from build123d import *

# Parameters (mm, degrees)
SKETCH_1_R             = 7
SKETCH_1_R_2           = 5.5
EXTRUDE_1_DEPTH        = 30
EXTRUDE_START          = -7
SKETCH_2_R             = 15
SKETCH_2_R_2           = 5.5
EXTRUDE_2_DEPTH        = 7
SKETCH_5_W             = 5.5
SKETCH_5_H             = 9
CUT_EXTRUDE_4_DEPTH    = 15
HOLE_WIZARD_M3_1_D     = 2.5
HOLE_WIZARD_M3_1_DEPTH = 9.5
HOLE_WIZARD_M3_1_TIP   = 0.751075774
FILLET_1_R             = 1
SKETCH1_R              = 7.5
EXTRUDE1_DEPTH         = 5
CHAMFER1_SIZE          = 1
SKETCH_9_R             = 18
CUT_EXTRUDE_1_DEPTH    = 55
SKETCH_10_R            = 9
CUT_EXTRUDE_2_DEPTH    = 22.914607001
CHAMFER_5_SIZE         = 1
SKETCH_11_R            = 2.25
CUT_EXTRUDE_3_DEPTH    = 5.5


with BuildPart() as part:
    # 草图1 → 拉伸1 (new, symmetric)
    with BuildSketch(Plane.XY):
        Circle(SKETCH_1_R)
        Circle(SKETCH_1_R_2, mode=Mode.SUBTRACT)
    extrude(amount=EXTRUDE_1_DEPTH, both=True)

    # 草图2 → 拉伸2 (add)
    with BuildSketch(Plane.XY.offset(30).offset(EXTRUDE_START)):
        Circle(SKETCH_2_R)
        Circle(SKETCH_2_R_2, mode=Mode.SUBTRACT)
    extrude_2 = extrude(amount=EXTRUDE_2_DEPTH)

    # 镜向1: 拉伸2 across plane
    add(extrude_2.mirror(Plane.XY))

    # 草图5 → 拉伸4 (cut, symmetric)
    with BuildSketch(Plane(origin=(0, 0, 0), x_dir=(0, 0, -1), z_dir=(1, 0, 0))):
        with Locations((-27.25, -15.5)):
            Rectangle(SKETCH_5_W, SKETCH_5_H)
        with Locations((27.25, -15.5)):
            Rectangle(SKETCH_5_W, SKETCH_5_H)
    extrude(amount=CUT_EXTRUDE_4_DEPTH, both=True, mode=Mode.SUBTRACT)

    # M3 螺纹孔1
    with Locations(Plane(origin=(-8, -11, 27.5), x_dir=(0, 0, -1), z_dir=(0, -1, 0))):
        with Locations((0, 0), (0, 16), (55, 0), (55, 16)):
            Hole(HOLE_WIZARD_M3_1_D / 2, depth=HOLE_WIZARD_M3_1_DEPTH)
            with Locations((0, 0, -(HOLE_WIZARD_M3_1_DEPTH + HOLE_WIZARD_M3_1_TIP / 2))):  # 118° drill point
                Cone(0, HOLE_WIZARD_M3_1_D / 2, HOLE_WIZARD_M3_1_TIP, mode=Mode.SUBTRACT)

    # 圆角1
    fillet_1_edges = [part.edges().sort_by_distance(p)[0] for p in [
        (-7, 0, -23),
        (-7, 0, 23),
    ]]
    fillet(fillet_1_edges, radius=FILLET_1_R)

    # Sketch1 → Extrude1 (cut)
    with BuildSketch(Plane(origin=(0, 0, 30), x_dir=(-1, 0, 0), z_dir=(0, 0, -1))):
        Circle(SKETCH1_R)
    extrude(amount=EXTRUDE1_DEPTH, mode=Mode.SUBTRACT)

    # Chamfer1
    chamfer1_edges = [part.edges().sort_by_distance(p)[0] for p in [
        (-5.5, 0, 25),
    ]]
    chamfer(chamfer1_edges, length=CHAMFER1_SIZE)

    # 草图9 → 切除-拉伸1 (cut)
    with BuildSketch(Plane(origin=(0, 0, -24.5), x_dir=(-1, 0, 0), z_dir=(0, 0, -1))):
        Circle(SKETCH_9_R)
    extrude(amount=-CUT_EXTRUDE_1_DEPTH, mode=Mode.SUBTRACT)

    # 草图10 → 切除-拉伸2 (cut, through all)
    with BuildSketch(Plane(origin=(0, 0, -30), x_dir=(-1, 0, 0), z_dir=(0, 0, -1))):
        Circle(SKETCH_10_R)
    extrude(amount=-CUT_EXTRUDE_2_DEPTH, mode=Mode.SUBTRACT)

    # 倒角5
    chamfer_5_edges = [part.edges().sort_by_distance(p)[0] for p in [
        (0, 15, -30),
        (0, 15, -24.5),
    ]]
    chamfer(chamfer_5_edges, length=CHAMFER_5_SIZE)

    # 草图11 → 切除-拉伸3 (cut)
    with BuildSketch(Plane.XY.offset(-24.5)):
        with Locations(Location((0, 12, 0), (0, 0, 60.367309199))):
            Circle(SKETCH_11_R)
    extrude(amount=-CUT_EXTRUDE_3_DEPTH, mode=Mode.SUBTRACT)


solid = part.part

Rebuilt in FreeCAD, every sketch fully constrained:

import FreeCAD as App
import Part
import Sketcher

V = App.Vector
Q = App.Units.Quantity


def edges_at(feature, points):
    """Names of the edges that pass closest to the given points."""
    edges = feature.Shape.Edges
    near = lambda p: min(range(len(edges)), key=lambda i: edges[i].distToShape(Part.Vertex(*p))[0])
    return sorted({f"Edge{near(p) + 1}" for p in points})


def add_polygon(sketch, points):
    """Adds a closed chain of lines whose ends are joined by coincident constraints."""
    first, n = sketch.GeometryCount, len(points)
    for a, b in zip(points, points[1:] + points[:1]):
        sketch.addGeometry(Part.LineSegment(App.Vector(*a, 0), App.Vector(*b, 0)), False)
    for i in range(n):
        sketch.addConstraint(Sketcher.Constraint("Coincident", first + i, 2, first + (i + 1) % n, 1))

doc = App.newDocument("Part")
body = doc.addObject("PartDesign::Body", "Body")

sketch1 = doc.addObject("Sketcher::SketchObject", "Sketch")
body.addObject(sketch1)
sketch1.AttachmentSupport = (doc.XY_Plane, [""])
sketch1.MapMode = "FlatFace"
sketch1.addGeometry([
    Part.Circle(V(0, 0, 0), V(0, 0, 1), 7),
    Part.Circle(V(0, 0, 0), V(0, 0, 1), 6),
], False)
sketch1.addConstraint([
    Sketcher.Constraint("Coincident", 0, 3, -1, 1),
    Sketcher.Constraint("Coincident", 1, 3, -1, 1),
    Sketcher.Constraint("Diameter", 0, Q("14 mm")),
    Sketcher.Constraint("Diameter", 1, Q("11 mm")),
])
pad1 = doc.addObject("PartDesign::Pad", "Pad")
body.addObject(pad1)
pad1.Profile = sketch1
pad1.Length = 60
pad1.Midplane = True

sketch2 = doc.addObject("Sketcher::SketchObject", "Sketch001")
body.addObject(sketch2)
sketch2.AttachmentSupport = (doc.XY_Plane, [""])
sketch2.MapMode = "FlatFace"
sketch2.AttachmentOffset = App.Placement(V(0, 0, 23), App.Rotation())
sketch2.addGeometry([
    Part.Circle(V(0, 0, 0), V(0, 0, 1), 15),
    Part.Circle(V(0, 0, 0), V(0, 0, 1), 6),
], False)
sketch2.addConstraint([
    Sketcher.Constraint("Coincident", 0, 3, -1, 1),
    Sketcher.Constraint("Coincident", 1, 3, -1, 1),
    Sketcher.Constraint("Diameter", 0, Q("30 mm")),
    Sketcher.Constraint("Diameter", 1, Q("11 mm")),
])
pad2 = doc.addObject("PartDesign::Pad", "Pad001")
body.addObject(pad2)
pad2.Profile = sketch2
pad2.Length = 7
doc.recompute()

mirrored = doc.addObject("PartDesign::Mirrored", "Mirrored")
body.addObject(mirrored)
mirrored.Originals = [pad2]
mirrored.MirrorPlane = (doc.XY_Plane, [""])
body.Tip = mirrored

sketch3 = doc.addObject("Sketcher::SketchObject", "Sketch002")
body.addObject(sketch3)
sketch3.AttachmentSupport = (doc.YZ_Plane, [""])
sketch3.MapMode = "FlatFace"
add_polygon(sketch3, [(-11, 30), (-20, 30), (-20, 24), (-11, 24)])
add_polygon(sketch3, [(-11, -24), (-20, -24), (-20, -30), (-11, -30)])
sketch3.addConstraint([
    Sketcher.Constraint("Horizontal", 0),
    Sketcher.Constraint("Vertical", 1),
    Sketcher.Constraint("Horizontal", 2),
    Sketcher.Constraint("Vertical", 3),
    Sketcher.Constraint("Horizontal", 4),
    Sketcher.Constraint("Vertical", 5),
    Sketcher.Constraint("Horizontal", 6),
    Sketcher.Constraint("Vertical", 7),
    Sketcher.Constraint("Symmetric", 1, 2, 4, 2, -1),
    Sketcher.Constraint("Symmetric", 3, 2, 6, 2, -1),
    Sketcher.Constraint("DistanceX", 0, 2, 0, 1, Q("9 mm")),
    Sketcher.Constraint("DistanceY", 1, 2, 1, 1, Q("5.5 mm")),
    Sketcher.Constraint("DistanceX", 0, 2, -1, 1, Q("20 mm")),
    Sketcher.Constraint("DistanceY", -1, 1, 0, 2, Q("30 mm")),
])
pocket1 = doc.addObject("PartDesign::Pocket", "Pocket")
body.addObject(pocket1)
pocket1.Profile = sketch3
pocket1.Length = 30
pocket1.Midplane = True

sketch4 = doc.addObject("Sketcher::SketchObject", "Sketch003")
body.addObject(sketch4)
sketch4.AttachmentSupport = (doc.XZ_Plane, [""])
sketch4.MapMode = "FlatFace"
sketch4.AttachmentOffset = App.Placement(V(0, 0, 11), App.Rotation())
sketch4.addGeometry([
    Part.Circle(V(-8, 27.5, 0), V(0, 0, 1), 1.2),
    Part.Circle(V(8, 27.5, 0), V(0, 0, 1), 1.2),
    Part.Circle(V(-8, -27.5, 0), V(0, 0, 1), 1.2),
    Part.Circle(V(8, -27.5, 0), V(0, 0, 1), 1.2),
], False)
sketch4.addConstraint([
    Sketcher.Constraint("Equal", 0, 1),
    Sketcher.Constraint("Equal", 1, 2),
    Sketcher.Constraint("Equal", 2, 3),
    Sketcher.Constraint("Symmetric", 1, 3, 2, 3, -1, 1),
    Sketcher.Constraint("Symmetric", 0, 3, 3, 3, -1, 1),
    Sketcher.Constraint("Symmetric", 0, 3, 1, 3, -2),
    Sketcher.Constraint("Diameter", 0, Q("2.5 mm")),
    Sketcher.Constraint("DistanceX", 0, 3, -1, 1, Q("8 mm")),
    Sketcher.Constraint("DistanceY", 2, 3, 0, 3, Q("55 mm")),
])
doc.recompute()
hole = doc.addObject("PartDesign::Hole", "Hole")
body.addObject(hole)
hole.Profile = sketch4
hole.ThreadType = "None"
hole.Diameter = 2.5
hole.DepthType = "Dimension"
hole.Depth = 9.5
hole.DrillPoint = "Angled"
hole.DrillPointAngle = 118
doc.recompute()

fillet = doc.addObject("PartDesign::Fillet", "Fillet")
body.addObject(fillet)
fillet.Base = (hole, edges_at(hole, [(-7, 0, -23), (-7, 0, 23)]))
fillet.Radius = 1

sketch5 = doc.addObject("Sketcher::SketchObject", "Sketch004")
body.addObject(sketch5)
sketch5.AttachmentSupport = (doc.XY_Plane, [""])
sketch5.MapMode = "FlatFace"
sketch5.AttachmentOffset = App.Placement(V(0, 0, 30), App.Rotation())
sketch5.addGeometry(Part.Circle(V(0, 0, 0), V(0, 0, 1), 8), False)
sketch5.addConstraint([
    Sketcher.Constraint("Coincident", 0, 3, -1, 1),
    Sketcher.Constraint("Diameter", 0, Q("15 mm")),
])
pocket2 = doc.addObject("PartDesign::Pocket", "Pocket001")
body.addObject(pocket2)
pocket2.Profile = sketch5
pocket2.Length = 5
doc.recompute()

chamfer = doc.addObject("PartDesign::Chamfer", "Chamfer")
body.addObject(chamfer)
chamfer.Base = (pocket2, edges_at(pocket2, [(-5.5, 0, 25)]))
chamfer.Size = 1

sketch6 = doc.addObject("Sketcher::SketchObject", "Sketch005")
body.addObject(sketch6)
sketch6.AttachmentSupport = (doc.XY_Plane, [""])
sketch6.MapMode = "FlatFace"
sketch6.AttachmentOffset = App.Placement(V(0, 0, -24.5), App.Rotation())
sketch6.addGeometry(Part.Circle(V(0, 0, 0), V(0, 0, 1), 18), False)
sketch6.addConstraint([
    Sketcher.Constraint("Coincident", 0, 3, -1, 1),
    Sketcher.Constraint("Diameter", 0, Q("36 mm")),
])
pocket3 = doc.addObject("PartDesign::Pocket", "Pocket002")
body.addObject(pocket3)
pocket3.Profile = sketch6
pocket3.Length = 55
pocket3.Reversed = True

sketch7 = doc.addObject("Sketcher::SketchObject", "Sketch006")
body.addObject(sketch7)
sketch7.AttachmentSupport = (doc.XY_Plane, [""])
sketch7.MapMode = "FlatFace"
sketch7.AttachmentOffset = App.Placement(V(0, 0, -30), App.Rotation())
sketch7.addGeometry(Part.Circle(V(0, 0, 0), V(0, 0, 1), 9), False)
sketch7.addConstraint([
    Sketcher.Constraint("Coincident", 0, 3, -1, 1),
    Sketcher.Constraint("Diameter", 0, Q("18 mm")),
])
pocket4 = doc.addObject("PartDesign::Pocket", "Pocket003")
body.addObject(pocket4)
pocket4.Profile = sketch7
pocket4.Type = "ThroughAll"
pocket4.Reversed = True
doc.recompute()

chamfer2 = doc.addObject("PartDesign::Chamfer", "Chamfer001")
body.addObject(chamfer2)
chamfer2.Base = (pocket4, edges_at(pocket4, [(0, 15, -30), (0, 15, -24.5)]))
chamfer2.Size = 1

sketch8 = doc.addObject("Sketcher::SketchObject", "Sketch007")
body.addObject(sketch8)
sketch8.AttachmentSupport = (doc.XY_Plane, [""])
sketch8.MapMode = "FlatFace"
sketch8.AttachmentOffset = App.Placement(V(0, 0, -24.5), App.Rotation())
sketch8.addGeometry(Part.Circle(V(0, 12, 0), V(0, 0, 1), 2.2), False)
sketch8.addConstraint([
    Sketcher.Constraint("PointOnObject", 0, 3, -2),
    Sketcher.Constraint("Diameter", 0, Q("4.5 mm")),
    Sketcher.Constraint("DistanceY", -1, 1, 0, 3, Q("12 mm")),
])
pocket5 = doc.addObject("PartDesign::Pocket", "Pocket004")
body.addObject(pocket5)
pocket5.Profile = sketch8
pocket5.Length = 5.5

doc.recompute()
